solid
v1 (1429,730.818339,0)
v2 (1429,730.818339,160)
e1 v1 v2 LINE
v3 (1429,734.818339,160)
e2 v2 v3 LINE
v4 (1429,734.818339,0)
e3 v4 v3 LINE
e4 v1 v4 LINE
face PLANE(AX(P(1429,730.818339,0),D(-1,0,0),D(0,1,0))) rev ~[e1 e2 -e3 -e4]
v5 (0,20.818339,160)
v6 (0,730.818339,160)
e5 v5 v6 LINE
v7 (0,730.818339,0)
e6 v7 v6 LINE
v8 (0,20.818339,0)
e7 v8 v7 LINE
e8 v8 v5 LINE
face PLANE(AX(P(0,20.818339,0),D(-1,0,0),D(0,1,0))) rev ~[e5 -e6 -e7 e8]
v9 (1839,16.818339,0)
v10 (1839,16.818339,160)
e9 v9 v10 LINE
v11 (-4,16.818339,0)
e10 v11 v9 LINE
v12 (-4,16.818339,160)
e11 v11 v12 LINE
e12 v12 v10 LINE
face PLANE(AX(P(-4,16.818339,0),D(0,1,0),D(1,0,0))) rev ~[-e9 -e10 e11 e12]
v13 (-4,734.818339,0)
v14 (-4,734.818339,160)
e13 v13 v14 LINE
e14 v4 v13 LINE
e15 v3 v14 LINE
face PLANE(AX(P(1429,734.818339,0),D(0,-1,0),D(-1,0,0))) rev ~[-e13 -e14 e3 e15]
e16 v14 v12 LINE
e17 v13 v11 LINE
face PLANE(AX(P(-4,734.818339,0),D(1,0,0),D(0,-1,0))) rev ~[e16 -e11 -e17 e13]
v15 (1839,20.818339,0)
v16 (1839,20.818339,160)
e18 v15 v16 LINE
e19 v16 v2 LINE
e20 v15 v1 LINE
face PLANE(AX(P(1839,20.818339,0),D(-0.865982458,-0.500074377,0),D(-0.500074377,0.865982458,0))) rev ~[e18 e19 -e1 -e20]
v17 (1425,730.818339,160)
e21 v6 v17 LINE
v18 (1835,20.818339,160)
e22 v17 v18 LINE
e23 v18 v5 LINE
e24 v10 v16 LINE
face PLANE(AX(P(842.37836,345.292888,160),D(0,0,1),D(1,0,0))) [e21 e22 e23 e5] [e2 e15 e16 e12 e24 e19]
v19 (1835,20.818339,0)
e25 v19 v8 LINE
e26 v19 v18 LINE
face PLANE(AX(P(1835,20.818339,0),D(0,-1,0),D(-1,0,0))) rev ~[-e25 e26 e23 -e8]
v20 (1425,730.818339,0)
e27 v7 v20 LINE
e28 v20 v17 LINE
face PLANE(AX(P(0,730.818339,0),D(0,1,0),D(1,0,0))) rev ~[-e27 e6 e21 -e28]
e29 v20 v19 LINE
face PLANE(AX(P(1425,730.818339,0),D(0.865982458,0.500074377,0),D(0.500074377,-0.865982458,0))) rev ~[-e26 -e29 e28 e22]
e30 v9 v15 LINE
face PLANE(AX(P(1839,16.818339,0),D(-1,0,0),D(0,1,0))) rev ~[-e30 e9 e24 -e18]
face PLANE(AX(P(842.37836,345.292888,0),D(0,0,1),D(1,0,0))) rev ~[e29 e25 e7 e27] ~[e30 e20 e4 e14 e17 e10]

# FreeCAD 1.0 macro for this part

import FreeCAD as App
import Part
import Sketcher
from FreeCAD import Vector
Q = App.Units.Quantity


def add_polygon(sketch, points):
    """Adds a closed chain of lines whose ends are joined by coincident constraints."""
    first, n = sketch.GeometryCount, len(points)
    for a, b in zip(points, points[1:] + points[:1]):
        sketch.addGeometry(Part.LineSegment(App.Vector(*a, 0), App.Vector(*b, 0)), False)
    for i in range(n):
        sketch.addConstraint(Sketcher.Constraint("Coincident", first + i, 2, first + (i + 1) % n, 1))

doc = App.newDocument("Part")
body = doc.addObject("PartDesign::Body", "Body")

sketch1 = doc.addObject("Sketcher::SketchObject", "Sketch")
body.addObject(sketch1)
sketch1.AttachmentSupport = (doc.XY_Plane, [""])
sketch1.MapMode = "FlatFace"
add_polygon(sketch1, [(-4, 16.8), (1839, 16.8), (1839, 20.8), (1429, 730.8), (1429, 734.8), (-4, 734.8)])
add_polygon(sketch1, [(1425, 730.8), (1835, 20.8), (0, 20.8), (0, 730.8)])
sketch1.addConstraint([
    Sketcher.Constraint("Horizontal", 0),
    Sketcher.Constraint("Vertical", 1),
    Sketcher.Constraint("Vertical", 3),
    Sketcher.Constraint("Horizontal", 4),
    Sketcher.Constraint("Vertical", 5),
    Sketcher.Constraint("Horizontal", 7),
    Sketcher.Constraint("Vertical", 8),
    Sketcher.Constraint("Horizontal", 9),
    Sketcher.Constraint("PointOnObject", 7, 2, -2),
    Sketcher.Constraint("Parallel", 2, 6),
    Sketcher.Constraint("Horizontal", 1, 2, 6, 2),
    Sketcher.Constraint("Horizontal", 2, 2, 8, 2),
    Sketcher.Constraint("Equal", 1, 3),
    Sketcher.Constraint("DistanceX", 0, 1, 0, 2, Q("1843 mm")),
    Sketcher.Constraint("DistanceX", 4, 2, 4, 1, Q("1433 mm")),
    Sketcher.Constraint("DistanceX", 7, 2, 7, 1, Q("1835 mm")),
    Sketcher.Constraint("DistanceY", 1, 1, 1, 2, Q("4 mm")),
    Sketcher.Constraint("DistanceY", 5, 2, 5, 1, Q("718 mm")),
    Sketcher.Constraint("DistanceX", -1, 1, 0, 2, Q("1839 mm")),
    Sketcher.Constraint("DistanceY", -1, 1, 0, 2, Q("16.818339 mm")),
])
pad1 = doc.addObject("PartDesign::Pad", "Pad")
body.addObject(pad1)
pad1.Profile = sketch1
pad1.Length = 160

doc.recompute()
